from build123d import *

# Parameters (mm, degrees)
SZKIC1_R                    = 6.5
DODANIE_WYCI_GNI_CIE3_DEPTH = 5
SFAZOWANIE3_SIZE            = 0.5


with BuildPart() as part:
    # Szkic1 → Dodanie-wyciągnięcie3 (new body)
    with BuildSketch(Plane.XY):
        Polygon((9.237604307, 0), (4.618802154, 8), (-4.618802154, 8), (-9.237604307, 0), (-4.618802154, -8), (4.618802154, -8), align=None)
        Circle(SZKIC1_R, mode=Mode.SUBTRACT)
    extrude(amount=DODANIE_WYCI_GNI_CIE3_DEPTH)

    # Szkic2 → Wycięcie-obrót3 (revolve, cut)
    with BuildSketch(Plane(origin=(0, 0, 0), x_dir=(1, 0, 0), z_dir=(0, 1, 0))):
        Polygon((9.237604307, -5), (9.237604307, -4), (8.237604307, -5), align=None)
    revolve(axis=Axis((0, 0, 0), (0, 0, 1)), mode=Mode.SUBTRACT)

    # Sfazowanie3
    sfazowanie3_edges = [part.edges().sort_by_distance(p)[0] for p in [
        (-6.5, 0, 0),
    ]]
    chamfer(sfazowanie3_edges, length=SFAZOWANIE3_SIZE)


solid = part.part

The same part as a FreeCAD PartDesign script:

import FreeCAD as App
import Part
import Sketcher
Q = App.Units.Quantity


def edges_at(feature, points):
    """Names of the edges that pass closest to the given points."""
    edges = feature.Shape.Edges
    near = lambda p: min(range(len(edges)), key=lambda i: edges[i].distToShape(Part.Vertex(*p))[0])
    return sorted({f"Edge{near(p) + 1}" for p in points})

doc = App.newDocument("Part")
body = doc.addObject("PartDesign::Body", "Body")

sketch1 = body.newObject("Sketcher::SketchObject", "Sketch")
sketch1.AttachmentSupport = (doc.getObject("XY_Plane"), [""])
sketch1.MapMode = "FlatFace"
sketch1.addGeometry([
    Part.LineSegment(App.Vector(9, 0, 0), App.Vector(5, 8, 0)),
    Part.LineSegment(App.Vector(5, 8, 0), App.Vector(-5, 8, 0)),
    Part.LineSegment(App.Vector(-5, 8, 0), App.Vector(-9, 0, 0)),
    Part.LineSegment(App.Vector(-9, 0, 0), App.Vector(-5, -8, 0)),
    Part.LineSegment(App.Vector(-5, -8, 0), App.Vector(5, -8, 0)),
    Part.LineSegment(App.Vector(5, -8, 0), App.Vector(9, 0, 0)),
    Part.Circle(App.Vector(0, 0, 0), App.Vector(0, 0, 1), 6),
], False)
sketch1.addConstraint([
    Sketcher.Constraint("Coincident", 0, 2, 1, 1),
    Sketcher.Constraint("Coincident", 1, 2, 2, 1),
    Sketcher.Constraint("Coincident", 2, 2, 3, 1),
    Sketcher.Constraint("Coincident", 3, 2, 4, 1),
    Sketcher.Constraint("Coincident", 4, 2, 5, 1),
    Sketcher.Constraint("Coincident", 5, 2, 0, 1),
    Sketcher.Constraint("Horizontal", 1),
    Sketcher.Constraint("Horizontal", 4),
    Sketcher.Constraint("Coincident", 6, 3, -1, 1),
    Sketcher.Constraint("Symmetric", 0, 2, 3, 2, -1, 1),
    Sketcher.Constraint("Symmetric", 2, 2, 5, 2, -1, 1),
    Sketcher.Constraint("PointOnObject", 2, 2, -1),
    Sketcher.Constraint("Parallel", 2, 5),
    Sketcher.Constraint("Vertical", 1, 2, 3, 2),
    Sketcher.Constraint("Diameter", 6, 13.0),
    Sketcher.Constraint("Angle", 0, Q("120 deg")),
    Sketcher.Constraint("DistanceY", -1, 1, 0, 2, 8.0),
    Sketcher.Constraint("DistanceX", 1, 2, 1, 1, 9.237604),
])
pad1 = body.newObject("PartDesign::Pad", "Pad")
pad1.Profile = sketch1
pad1.Length = 5

sketch2 = body.newObject("Sketcher::SketchObject", "Sketch001")
sketch2.AttachmentSupport = (doc.getObject("XZ_Plane"), [""])
sketch2.MapMode = "FlatFace"
sketch2.addGeometry([
    Part.LineSegment(App.Vector(9.2, 5, 0), App.Vector(9.2, 4, 0)),
    Part.LineSegment(App.Vector(9.2, 4, 0), App.Vector(8.2, 5, 0)),
    Part.LineSegment(App.Vector(8.2, 5, 0), App.Vector(9.2, 5, 0)),
], False)
sketch2.addConstraint([
    Sketcher.Constraint("Coincident", 0, 2, 1, 1),
    Sketcher.Constraint("Coincident", 1, 2, 2, 1),
    Sketcher.Constraint("Coincident", 2, 2, 0, 1),
    Sketcher.Constraint("Vertical", 0),
    Sketcher.Constraint("Horizontal", 2),
    Sketcher.Constraint("Equal", 2, 0),
    Sketcher.Constraint("DistanceX", 2, 1, 2, 2, 1.0),
    Sketcher.Constraint("DistanceY", -1, 1, 0, 2, 4.0),
    Sketcher.Constraint("DistanceX", -1, 1, 0, 2, 9.237604),
])
groove = body.newObject("PartDesign::Groove", "Groove")
groove.Profile = sketch2
groove.ReferenceAxis = (sketch2, ["V_Axis"])
groove.Angle = 360
doc.recompute()

chamfer = body.newObject("PartDesign::Chamfer", "Chamfer")
chamfer.Base = (groove, edges_at(groove, [(-6.5, 0, 0)]))
chamfer.Size = 0.5

doc.recompute()
